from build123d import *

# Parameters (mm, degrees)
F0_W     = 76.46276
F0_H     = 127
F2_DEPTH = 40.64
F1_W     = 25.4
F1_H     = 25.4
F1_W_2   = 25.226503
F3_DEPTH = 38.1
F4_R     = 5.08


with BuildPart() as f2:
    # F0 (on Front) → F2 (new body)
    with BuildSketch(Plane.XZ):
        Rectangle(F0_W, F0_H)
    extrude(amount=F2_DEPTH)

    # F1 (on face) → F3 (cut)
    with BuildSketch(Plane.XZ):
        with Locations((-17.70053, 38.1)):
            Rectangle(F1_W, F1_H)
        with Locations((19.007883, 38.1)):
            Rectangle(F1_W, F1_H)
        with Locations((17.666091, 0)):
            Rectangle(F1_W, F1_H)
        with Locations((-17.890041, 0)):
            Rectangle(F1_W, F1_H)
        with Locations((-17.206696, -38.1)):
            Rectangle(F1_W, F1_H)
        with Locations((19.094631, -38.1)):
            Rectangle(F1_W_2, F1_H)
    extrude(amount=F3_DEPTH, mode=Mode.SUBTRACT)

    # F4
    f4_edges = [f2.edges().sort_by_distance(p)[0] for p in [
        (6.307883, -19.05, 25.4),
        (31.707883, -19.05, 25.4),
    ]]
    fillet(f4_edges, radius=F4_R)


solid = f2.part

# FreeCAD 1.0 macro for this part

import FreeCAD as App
import Part
import Sketcher

V = App.Vector
Q = App.Units.Quantity


def edges_at(feature, points):
    """Names of the edges that pass closest to the given points."""
    edges = feature.Shape.Edges
    near = lambda p: min(range(len(edges)), key=lambda i: edges[i].distToShape(Part.Vertex(*p))[0])
    return sorted({f"Edge{near(p) + 1}" for p in points})

doc = App.newDocument("Part")
body = doc.addObject("PartDesign::Body", "Body")

sketch1 = doc.addObject("Sketcher::SketchObject", "Sketch")
body.addObject(sketch1)
sketch1.AttachmentSupport = (doc.XZ_Plane, [""])
sketch1.MapMode = "FlatFace"
sketch1.addGeometry([
    Part.LineSegment(V(-38, 64, 0), V(-38, -64, 0)),
    Part.LineSegment(V(-38, -64, 0), V(38, -64, 0)),
    Part.LineSegment(V(38, -64, 0), V(38, 64, 0)),
    Part.LineSegment(V(38, 64, 0), V(-38, 64, 0)),
], False)
sketch1.addConstraint([
    Sketcher.Constraint("Coincident", 0, 2, 1, 1),
    Sketcher.Constraint("Coincident", 1, 2, 2, 1),
    Sketcher.Constraint("Coincident", 2, 2, 3, 1),
    Sketcher.Constraint("Coincident", 3, 2, 0, 1),
    Sketcher.Constraint("Vertical", 0),
    Sketcher.Constraint("Horizontal", 1),
    Sketcher.Constraint("Vertical", 2),
    Sketcher.Constraint("Horizontal", 3),
    Sketcher.Constraint("Symmetric", 0, 2, 2, 2, -1, 1),
    Sketcher.Constraint("DistanceY", 0, 2, 0, 1, Q("5 in")),
    Sketcher.Constraint("DistanceX", 1, 1, 1, 2, Q("76.46276 mm")),
])
pad1 = doc.addObject("PartDesign::Pad", "Pad")
body.addObject(pad1)
pad1.Profile = sketch1
pad1.Length = Q("1.6 in")

sketch2 = doc.addObject("Sketcher::SketchObject", "Sketch001")
body.addObject(sketch2)
sketch2.AttachmentSupport = (doc.XZ_Plane, [""])
sketch2.MapMode = "FlatFace"
sketch2.addGeometry([
    Part.LineSegment(V(-30, 51, 0), V(-30, 25, 0)),
    Part.LineSegment(V(-30, 25, 0), V(-5, 25, 0)),
    Part.LineSegment(V(-5, 25, 0), V(-5, 51, 0)),
    Part.LineSegment(V(-5, 51, 0), V(-30, 51, 0)),
    Part.LineSegment(V(6, 51, 0), V(6, 25, 0)),
    Part.LineSegment(V(6, 25, 0), V(32, 25, 0)),
    Part.LineSegment(V(32, 25, 0), V(32, 51, 0)),
    Part.LineSegment(V(32, 51, 0), V(6, 51, 0)),
    Part.LineSegment(V(5, 13, 0), V(5, -13, 0)),
    Part.LineSegment(V(5, -13, 0), V(30, -13, 0)),
    Part.LineSegment(V(30, -13, 0), V(30, 13, 0)),
    Part.LineSegment(V(30, 13, 0), V(5, 13, 0)),
    Part.LineSegment(V(-31, 13, 0), V(-31, -13, 0)),
    Part.LineSegment(V(-31, -13, 0), V(-5, -13, 0)),
    Part.LineSegment(V(-5, -13, 0), V(-5, 13, 0)),
    Part.LineSegment(V(-5, 13, 0), V(-31, 13, 0)),
    Part.LineSegment(V(-30, -25, 0), V(-30, -51, 0)),
    Part.LineSegment(V(-30, -51, 0), V(-5, -51, 0)),
    Part.LineSegment(V(-5, -51, 0), V(-5, -25, 0)),
    Part.LineSegment(V(-5, -25, 0), V(-30, -25, 0)),
    Part.LineSegment(V(6, -25, 0), V(6, -51, 0)),
    Part.LineSegment(V(6, -51, 0), V(32, -51, 0)),
    Part.LineSegment(V(32, -51, 0), V(32, -25, 0)),
    Part.LineSegment(V(32, -25, 0), V(6, -25, 0)),
], False)
sketch2.addConstraint([
    Sketcher.Constraint("Coincident", 0, 2, 1, 1),
    Sketcher.Constraint("Coincident", 1, 2, 2, 1),
    Sketcher.Constraint("Coincident", 2, 2, 3, 1),
    Sketcher.Constraint("Coincident", 3, 2, 0, 1),
    Sketcher.Constraint("Coincident", 4, 2, 5, 1),
    Sketcher.Constraint("Coincident", 5, 2, 6, 1),
    Sketcher.Constraint("Coincident", 6, 2, 7, 1),
    Sketcher.Constraint("Coincident", 7, 2, 4, 1),
    Sketcher.Constraint("Coincident", 8, 2, 9, 1),
    Sketcher.Constraint("Coincident", 9, 2, 10, 1),
    Sketcher.Constraint("Coincident", 10, 2, 11, 1),
    Sketcher.Constraint("Coincident", 11, 2, 8, 1),
    Sketcher.Constraint("Coincident", 12, 2, 13, 1),
    Sketcher.Constraint("Coincident", 13, 2, 14, 1),
    Sketcher.Constraint("Coincident", 14, 2, 15, 1),
    Sketcher.Constraint("Coincident", 15, 2, 12, 1),
    Sketcher.Constraint("Coincident", 16, 2, 17, 1),
    Sketcher.Constraint("Coincident", 17, 2, 18, 1),
    Sketcher.Constraint("Coincident", 18, 2, 19, 1),
    Sketcher.Constraint("Coincident", 19, 2, 16, 1),
    Sketcher.Constraint("Coincident", 20, 2, 21, 1),
    Sketcher.Constraint("Coincident", 21, 2, 22, 1),
    Sketcher.Constraint("Coincident", 22, 2, 23, 1),
    Sketcher.Constraint("Coincident", 23, 2, 20, 1),
    Sketcher.Constraint("Vertical", 0),
    Sketcher.Constraint("Horizontal", 1),
    Sketcher.Constraint("Vertical", 2),
    Sketcher.Constraint("Horizontal", 3),
    Sketcher.Constraint("Vertical", 4),
    Sketcher.Constraint("Horizontal", 5),
    Sketcher.Constraint("Vertical", 6),
    Sketcher.Constraint("Horizontal", 7),
    Sketcher.Constraint("Vertical", 8),
    Sketcher.Constraint("Horizontal", 9),
    Sketcher.Constraint("Vertical", 10),
    Sketcher.Constraint("Horizontal", 11),
    Sketcher.Constraint("Vertical", 12),
    Sketcher.Constraint("Horizontal", 13),
    Sketcher.Constraint("Vertical", 14),
    Sketcher.Constraint("Horizontal", 15),
    Sketcher.Constraint("Vertical", 16),
    Sketcher.Constraint("Horizontal", 17),
    Sketcher.Constraint("Vertical", 18),
    Sketcher.Constraint("Horizontal", 19),
    Sketcher.Constraint("Vertical", 20),
    Sketcher.Constraint("Horizontal", 21),
    Sketcher.Constraint("Vertical", 22),
    Sketcher.Constraint("Horizontal", 23),
    Sketcher.Constraint("Symmetric", 6, 2, 21, 2, -1),
    Sketcher.Constraint("Horizontal", 1, 2, 4, 2),
    Sketcher.Constraint("Horizontal", 3, 2, 6, 2),
    Sketcher.Constraint("Horizontal", 9, 2, 12, 2),
    Sketcher.Constraint("Horizontal", 11, 2, 14, 2),
    Sketcher.Constraint("Horizontal", 17, 2, 20, 2),
    Sketcher.Constraint("Horizontal", 19, 2, 22, 2),
    Sketcher.Constraint("Equal", 3, 5),
    Sketcher.Constraint("Equal", 7, 9),
    Sketcher.Constraint("Equal", 11, 13),
    Sketcher.Constraint("Equal", 15, 17),
    Sketcher.Constraint("Equal", 19, 0),
    Sketcher.Constraint("Equal", 6, 8),
    Sketcher.Constraint("Equal", 14, 16),
    Sketcher.Constraint("DistanceX", 1, 1, 1, 2, Q("1 in")),
    Sketcher.Constraint("DistanceY", -1, 1, 0, 2, Q("1 in")),
    Sketcher.Constraint("DistanceY", 8, 2, -1, 1, Q("0.5 in")),
    Sketcher.Constraint("DistanceX", 21, 1, 21, 2, Q("25.226503 mm")),
    Sketcher.Constraint("DistanceX", 0, 2, -1, 1, Q("30.40053 mm")),
    Sketcher.Constraint("DistanceX", -1, 1, 8, 2, Q("4.966091 mm")),
    Sketcher.Constraint("DistanceX", 12, 2, -1, 1, Q("30.590041 mm")),
    Sketcher.Constraint("DistanceX", -1, 1, 20, 2, Q("6.48138 mm")),
    Sketcher.Constraint("DistanceX", 17, 2, 21, 2, Q("36.214579 mm")),
])
pocket1 = doc.addObject("PartDesign::Pocket", "Pocket")
body.addObject(pocket1)
pocket1.Profile = sketch2
pocket1.Length = Q("1.5 in")
pocket1.Reversed = True
doc.recompute()

fillet = doc.addObject("PartDesign::Fillet", "Fillet")
body.addObject(fillet)
fillet.Base = (pocket1, edges_at(pocket1, [(6.308, -19.05, 25.4), (31.708, -19.05, 25.4)]))
fillet.Radius = Q("0.2 in")

doc.recompute()
